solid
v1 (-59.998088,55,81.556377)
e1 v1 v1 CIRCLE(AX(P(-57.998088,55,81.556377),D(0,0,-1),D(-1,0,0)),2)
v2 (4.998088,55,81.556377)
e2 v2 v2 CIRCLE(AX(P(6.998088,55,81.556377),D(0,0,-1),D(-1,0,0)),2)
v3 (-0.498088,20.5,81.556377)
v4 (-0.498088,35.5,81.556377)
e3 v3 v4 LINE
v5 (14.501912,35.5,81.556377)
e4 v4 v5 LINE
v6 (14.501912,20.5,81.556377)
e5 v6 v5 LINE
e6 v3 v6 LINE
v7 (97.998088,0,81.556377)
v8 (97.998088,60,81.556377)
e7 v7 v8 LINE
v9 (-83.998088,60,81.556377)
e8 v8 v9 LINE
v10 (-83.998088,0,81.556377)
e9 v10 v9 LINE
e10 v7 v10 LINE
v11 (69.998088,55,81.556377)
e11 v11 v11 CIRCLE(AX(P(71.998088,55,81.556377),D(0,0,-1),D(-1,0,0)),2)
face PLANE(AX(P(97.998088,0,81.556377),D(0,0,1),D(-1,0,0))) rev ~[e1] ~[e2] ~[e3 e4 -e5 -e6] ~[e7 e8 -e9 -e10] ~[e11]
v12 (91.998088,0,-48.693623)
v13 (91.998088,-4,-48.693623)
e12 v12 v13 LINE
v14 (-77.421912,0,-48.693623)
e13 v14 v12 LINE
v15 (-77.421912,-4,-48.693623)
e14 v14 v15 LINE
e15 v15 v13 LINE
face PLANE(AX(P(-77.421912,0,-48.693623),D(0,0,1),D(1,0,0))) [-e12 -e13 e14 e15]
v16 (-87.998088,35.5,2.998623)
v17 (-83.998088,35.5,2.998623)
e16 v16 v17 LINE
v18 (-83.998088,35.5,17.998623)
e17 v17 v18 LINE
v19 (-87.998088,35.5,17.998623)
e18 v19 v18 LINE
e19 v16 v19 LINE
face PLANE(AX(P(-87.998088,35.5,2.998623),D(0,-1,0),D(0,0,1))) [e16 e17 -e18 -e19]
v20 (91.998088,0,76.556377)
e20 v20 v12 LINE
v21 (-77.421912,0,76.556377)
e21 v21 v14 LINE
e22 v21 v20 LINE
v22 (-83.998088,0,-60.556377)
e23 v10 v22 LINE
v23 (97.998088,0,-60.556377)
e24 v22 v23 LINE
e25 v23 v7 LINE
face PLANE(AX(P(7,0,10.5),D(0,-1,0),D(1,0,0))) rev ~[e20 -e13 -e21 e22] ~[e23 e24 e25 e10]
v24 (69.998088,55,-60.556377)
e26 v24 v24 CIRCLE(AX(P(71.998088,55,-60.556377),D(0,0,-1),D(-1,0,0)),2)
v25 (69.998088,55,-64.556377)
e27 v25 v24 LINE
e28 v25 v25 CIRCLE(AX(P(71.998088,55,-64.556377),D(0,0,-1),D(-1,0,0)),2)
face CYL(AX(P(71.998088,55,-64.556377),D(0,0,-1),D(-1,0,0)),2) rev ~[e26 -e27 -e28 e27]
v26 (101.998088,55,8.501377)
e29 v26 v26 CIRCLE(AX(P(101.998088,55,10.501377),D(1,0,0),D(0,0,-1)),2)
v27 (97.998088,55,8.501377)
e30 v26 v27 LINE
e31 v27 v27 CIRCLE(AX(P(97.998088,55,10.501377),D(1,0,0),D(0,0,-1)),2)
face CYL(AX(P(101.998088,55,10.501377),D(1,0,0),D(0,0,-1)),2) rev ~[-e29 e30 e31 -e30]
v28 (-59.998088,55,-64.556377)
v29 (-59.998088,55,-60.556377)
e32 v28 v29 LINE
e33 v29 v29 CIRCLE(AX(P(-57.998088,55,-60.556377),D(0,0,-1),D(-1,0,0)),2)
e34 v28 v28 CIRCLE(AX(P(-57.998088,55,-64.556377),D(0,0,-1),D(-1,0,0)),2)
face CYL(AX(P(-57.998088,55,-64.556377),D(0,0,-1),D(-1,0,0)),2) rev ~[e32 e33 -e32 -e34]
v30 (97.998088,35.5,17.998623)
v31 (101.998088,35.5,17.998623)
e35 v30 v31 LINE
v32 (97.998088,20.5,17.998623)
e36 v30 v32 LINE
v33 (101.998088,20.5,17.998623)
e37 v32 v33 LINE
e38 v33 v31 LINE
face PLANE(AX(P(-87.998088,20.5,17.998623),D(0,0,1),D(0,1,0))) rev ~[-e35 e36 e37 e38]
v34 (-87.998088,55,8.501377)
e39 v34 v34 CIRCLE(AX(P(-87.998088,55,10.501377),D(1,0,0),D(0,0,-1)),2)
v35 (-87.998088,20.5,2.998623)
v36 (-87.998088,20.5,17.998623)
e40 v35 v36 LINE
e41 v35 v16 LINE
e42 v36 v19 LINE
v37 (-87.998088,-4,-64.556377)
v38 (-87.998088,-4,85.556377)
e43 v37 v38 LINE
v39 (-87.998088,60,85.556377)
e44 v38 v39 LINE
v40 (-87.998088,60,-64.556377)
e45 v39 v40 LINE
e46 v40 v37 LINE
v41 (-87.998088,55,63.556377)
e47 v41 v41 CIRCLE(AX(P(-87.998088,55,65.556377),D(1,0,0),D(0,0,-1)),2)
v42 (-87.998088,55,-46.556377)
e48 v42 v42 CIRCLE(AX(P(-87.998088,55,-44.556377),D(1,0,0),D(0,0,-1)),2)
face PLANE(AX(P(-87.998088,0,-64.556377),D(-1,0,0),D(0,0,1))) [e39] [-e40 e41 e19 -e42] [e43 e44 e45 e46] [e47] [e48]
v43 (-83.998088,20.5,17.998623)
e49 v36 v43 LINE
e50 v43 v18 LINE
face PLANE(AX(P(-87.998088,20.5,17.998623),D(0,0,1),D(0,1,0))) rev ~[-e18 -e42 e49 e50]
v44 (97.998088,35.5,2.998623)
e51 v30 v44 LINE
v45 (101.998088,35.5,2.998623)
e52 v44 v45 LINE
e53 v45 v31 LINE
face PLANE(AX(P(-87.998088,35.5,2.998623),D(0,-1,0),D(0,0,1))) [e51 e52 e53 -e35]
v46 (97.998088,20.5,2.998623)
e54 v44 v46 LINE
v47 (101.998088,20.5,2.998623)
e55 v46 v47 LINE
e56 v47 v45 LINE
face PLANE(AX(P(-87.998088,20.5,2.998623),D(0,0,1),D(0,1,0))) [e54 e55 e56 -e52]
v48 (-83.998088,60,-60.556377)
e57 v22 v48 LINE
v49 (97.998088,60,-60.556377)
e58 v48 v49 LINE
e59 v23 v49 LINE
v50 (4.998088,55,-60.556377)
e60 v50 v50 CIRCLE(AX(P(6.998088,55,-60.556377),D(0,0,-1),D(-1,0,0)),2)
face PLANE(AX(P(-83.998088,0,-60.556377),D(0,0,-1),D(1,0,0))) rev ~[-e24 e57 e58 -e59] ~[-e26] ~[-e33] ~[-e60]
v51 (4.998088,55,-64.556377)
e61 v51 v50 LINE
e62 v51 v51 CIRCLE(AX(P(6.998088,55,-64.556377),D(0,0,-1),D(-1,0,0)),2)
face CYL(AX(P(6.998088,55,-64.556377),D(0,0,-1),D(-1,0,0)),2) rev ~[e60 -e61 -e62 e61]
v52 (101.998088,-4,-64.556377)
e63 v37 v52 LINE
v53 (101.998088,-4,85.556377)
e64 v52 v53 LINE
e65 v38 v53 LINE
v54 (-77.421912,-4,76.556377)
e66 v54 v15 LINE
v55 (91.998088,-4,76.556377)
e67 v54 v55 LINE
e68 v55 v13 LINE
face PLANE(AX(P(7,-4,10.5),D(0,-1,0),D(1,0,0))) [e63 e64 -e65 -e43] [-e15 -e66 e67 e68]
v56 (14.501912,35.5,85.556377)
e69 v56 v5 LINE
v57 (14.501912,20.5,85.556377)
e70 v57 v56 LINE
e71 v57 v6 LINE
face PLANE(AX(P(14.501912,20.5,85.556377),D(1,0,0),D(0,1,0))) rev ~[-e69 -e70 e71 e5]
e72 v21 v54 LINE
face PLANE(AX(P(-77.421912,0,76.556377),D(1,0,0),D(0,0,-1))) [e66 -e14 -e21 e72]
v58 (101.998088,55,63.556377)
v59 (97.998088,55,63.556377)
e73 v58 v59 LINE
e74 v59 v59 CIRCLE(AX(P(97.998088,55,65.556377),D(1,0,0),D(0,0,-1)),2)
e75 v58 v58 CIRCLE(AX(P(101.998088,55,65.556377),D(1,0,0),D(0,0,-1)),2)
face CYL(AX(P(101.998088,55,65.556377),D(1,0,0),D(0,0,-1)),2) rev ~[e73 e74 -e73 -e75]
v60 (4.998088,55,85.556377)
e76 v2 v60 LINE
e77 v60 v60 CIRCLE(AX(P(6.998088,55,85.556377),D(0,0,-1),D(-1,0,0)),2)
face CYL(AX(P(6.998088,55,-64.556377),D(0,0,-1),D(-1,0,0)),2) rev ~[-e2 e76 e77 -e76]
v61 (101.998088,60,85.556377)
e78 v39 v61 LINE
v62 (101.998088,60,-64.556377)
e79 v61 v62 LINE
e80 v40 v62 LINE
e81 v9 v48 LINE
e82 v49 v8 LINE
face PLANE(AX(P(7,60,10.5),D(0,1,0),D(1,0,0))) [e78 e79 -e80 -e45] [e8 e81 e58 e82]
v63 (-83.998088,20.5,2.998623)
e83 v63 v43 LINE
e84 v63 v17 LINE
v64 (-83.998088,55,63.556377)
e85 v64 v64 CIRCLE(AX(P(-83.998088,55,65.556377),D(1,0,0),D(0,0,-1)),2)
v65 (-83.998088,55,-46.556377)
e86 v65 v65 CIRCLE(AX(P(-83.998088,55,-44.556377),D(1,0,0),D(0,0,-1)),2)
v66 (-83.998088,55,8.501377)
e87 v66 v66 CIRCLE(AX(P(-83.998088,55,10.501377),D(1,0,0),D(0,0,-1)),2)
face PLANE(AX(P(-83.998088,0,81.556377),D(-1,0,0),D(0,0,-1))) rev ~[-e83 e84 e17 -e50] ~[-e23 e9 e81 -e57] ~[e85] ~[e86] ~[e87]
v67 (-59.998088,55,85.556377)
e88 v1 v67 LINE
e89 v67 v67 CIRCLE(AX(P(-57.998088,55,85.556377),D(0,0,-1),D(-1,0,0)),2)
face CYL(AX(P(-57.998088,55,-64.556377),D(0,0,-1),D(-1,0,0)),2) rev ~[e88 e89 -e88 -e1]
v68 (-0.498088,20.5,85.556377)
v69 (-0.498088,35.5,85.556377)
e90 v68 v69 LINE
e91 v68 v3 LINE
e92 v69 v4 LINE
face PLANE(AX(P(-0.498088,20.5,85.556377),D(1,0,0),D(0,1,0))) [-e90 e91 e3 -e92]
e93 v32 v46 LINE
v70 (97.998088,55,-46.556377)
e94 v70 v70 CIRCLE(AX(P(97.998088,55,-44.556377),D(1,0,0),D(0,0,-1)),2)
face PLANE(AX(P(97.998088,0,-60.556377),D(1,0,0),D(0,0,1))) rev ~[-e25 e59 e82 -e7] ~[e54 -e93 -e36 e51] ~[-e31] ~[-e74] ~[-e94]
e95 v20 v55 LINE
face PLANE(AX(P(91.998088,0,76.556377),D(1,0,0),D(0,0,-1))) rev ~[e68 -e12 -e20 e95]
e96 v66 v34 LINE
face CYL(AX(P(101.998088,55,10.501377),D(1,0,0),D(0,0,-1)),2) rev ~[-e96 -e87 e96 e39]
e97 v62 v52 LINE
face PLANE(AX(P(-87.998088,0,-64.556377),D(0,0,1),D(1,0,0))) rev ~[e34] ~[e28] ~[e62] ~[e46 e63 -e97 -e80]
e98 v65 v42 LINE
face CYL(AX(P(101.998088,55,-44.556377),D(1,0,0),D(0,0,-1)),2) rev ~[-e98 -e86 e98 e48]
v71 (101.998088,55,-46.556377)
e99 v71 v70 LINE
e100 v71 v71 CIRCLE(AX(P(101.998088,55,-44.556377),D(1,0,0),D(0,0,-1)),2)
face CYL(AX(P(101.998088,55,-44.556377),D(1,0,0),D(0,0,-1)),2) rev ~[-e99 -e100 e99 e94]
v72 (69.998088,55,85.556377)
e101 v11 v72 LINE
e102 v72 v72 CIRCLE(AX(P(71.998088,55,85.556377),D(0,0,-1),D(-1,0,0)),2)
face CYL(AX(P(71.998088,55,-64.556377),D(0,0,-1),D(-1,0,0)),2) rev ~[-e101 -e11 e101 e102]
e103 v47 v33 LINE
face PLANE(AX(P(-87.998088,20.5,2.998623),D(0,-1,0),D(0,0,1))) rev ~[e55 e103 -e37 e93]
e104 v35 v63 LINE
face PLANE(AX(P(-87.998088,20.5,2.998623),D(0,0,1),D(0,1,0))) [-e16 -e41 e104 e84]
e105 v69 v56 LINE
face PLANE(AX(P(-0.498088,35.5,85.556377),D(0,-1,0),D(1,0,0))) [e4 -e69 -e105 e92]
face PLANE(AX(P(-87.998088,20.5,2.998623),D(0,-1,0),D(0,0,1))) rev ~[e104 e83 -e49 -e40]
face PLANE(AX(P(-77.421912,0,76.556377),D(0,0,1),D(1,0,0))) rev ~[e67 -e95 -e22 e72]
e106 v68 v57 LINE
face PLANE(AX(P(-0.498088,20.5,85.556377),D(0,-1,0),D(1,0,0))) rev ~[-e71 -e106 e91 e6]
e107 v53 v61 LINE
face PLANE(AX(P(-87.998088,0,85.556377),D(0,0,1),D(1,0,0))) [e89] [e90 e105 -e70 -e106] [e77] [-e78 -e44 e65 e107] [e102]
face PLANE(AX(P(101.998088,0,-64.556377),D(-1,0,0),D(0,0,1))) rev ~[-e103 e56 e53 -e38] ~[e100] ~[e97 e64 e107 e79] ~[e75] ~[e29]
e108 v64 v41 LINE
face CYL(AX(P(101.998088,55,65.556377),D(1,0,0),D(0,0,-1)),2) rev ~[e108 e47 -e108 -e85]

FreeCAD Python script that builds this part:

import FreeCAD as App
import Part
import Sketcher


def add_polygon(sketch, points):
    """Adds a closed chain of lines whose ends are joined by coincident constraints."""
    first, n = sketch.GeometryCount, len(points)
    for a, b in zip(points, points[1:] + points[:1]):
        sketch.addGeometry(Part.LineSegment(App.Vector(*a, 0), App.Vector(*b, 0)), False)
    for i in range(n):
        sketch.addConstraint(Sketcher.Constraint("Coincident", first + i, 2, first + (i + 1) % n, 1))

doc = App.newDocument("Part")
params = doc.addObject("Spreadsheet::Sheet", "Params")
for row, (alias, value) in enumerate([
    ("pad1_length", "60 mm"),
    ("pad2_length", "4 mm"),
    ("sketch3_width", "169.42 mm"),
    ("sketch3_height", "125.25 mm"),
    ("pocket1_length", "4 mm"),
    ("sketch4_width", "15 mm"),
    ("pocket2_length", "222 mm"),
    ("sketch5_width", "15 mm"),
    ("pocket3_length", "50 mm"),
    ("sketch6_diameter", "4 mm"),
    ("pocket4_length", "220 mm"),
    ("sketch7_diameter", "4 mm"),
    ("pocket5_length", "220 mm"),
], start=1):
    params.set(f"A{row}", alias)
    params.set(f"B{row}", "=" + value)
    params.setAlias(f"B{row}", alias)

body = doc.addObject("PartDesign::Body", "Body")

sketch1 = body.newObject("Sketcher::SketchObject", "Sketch")
sketch1.AttachmentSupport = (doc.getObject("XZ_Plane"), [""])
sketch1.MapMode = "FlatFace"
add_polygon(sketch1, [(-88, -65), (-88, 86), (102, 86), (102, -65)])
add_polygon(sketch1, [(-84, -61), (98, -61), (98, 82), (-84, 82)])
sketch1.addConstraint(Sketcher.Constraint("Vertical", 0))
sketch1.addConstraint(Sketcher.Constraint("Horizontal", 1))
sketch1.addConstraint(Sketcher.Constraint("Vertical", 2))
sketch1.addConstraint(Sketcher.Constraint("Horizontal", 3))
sketch1.addConstraint(Sketcher.Constraint("Horizontal", 4))
sketch1.addConstraint(Sketcher.Constraint("Vertical", 5))
sketch1.addConstraint(Sketcher.Constraint("Horizontal", 6))
sketch1.addConstraint(Sketcher.Constraint("Vertical", 7))
sketch1.addConstraint(Sketcher.Constraint("DistanceX", 4, 2, 2, 2, 4.0))
sketch1.addConstraint(Sketcher.Constraint("DistanceY", 2, 2, 4, 2, 4.0))
sketch1.addConstraint(Sketcher.Constraint("DistanceY", 5, 2, 1, 2, 4.0))
sketch1.addConstraint(Sketcher.Constraint("DistanceX", 0, 2, 6, 2, 4.0))
sketch1.addConstraint(Sketcher.Constraint("DistanceX", 1, 1, 1, 2, 189.996176))
sketch1.addConstraint(Sketcher.Constraint("DistanceY", 0, 1, 0, 2, 150.112755))
sketch1.addConstraint(Sketcher.Constraint("DistanceX", 0, 2, -1, 1, 87.998088))
sketch1.addConstraint(Sketcher.Constraint("DistanceY", -1, 1, 0, 2, 85.556377))
pad1 = body.newObject("PartDesign::Pad", "Pad")
pad1.Profile = sketch1
pad1.setExpression("Length", "Params.pad1_length")
pad1.Reversed = True

sketch2 = body.newObject("Sketcher::SketchObject", "Sketch001")
sketch2.AttachmentSupport = (doc.getObject("XZ_Plane"), [""])
sketch2.MapMode = "FlatFace"
add_polygon(sketch2, [(-88, 86), (-88, -65), (102, -65), (102, 86)])
sketch2.addConstraint(Sketcher.Constraint("Vertical", 0))
sketch2.addConstraint(Sketcher.Constraint("Horizontal", 1))
sketch2.addConstraint(Sketcher.Constraint("Vertical", 2))
sketch2.addConstraint(Sketcher.Constraint("Horizontal", 3))
sketch2.addConstraint(Sketcher.Constraint("DistanceX", 1, 1, 1, 2, 189.996176))
sketch2.addConstraint(Sketcher.Constraint("DistanceY", 0, 2, 0, 1, 150.112755))
sketch2.addConstraint(Sketcher.Constraint("DistanceX", 0, 2, -1, 1, 87.998088))
sketch2.addConstraint(Sketcher.Constraint("DistanceY", 0, 2, -1, 1, 64.556377))
pad2 = body.newObject("PartDesign::Pad", "Pad001")
pad2.Profile = sketch2
pad2.setExpression("Length", "Params.pad2_length")

sketch3 = body.newObject("Sketcher::SketchObject", "Sketch002")
sketch3.AttachmentSupport = (doc.getObject("XZ_Plane"), [""])
sketch3.MapMode = "FlatFace"
add_polygon(sketch3, [(-77, -49), (-77, 77), (92, 77), (92, -49)])
sketch3.addConstraint(Sketcher.Constraint("Vertical", 0))
sketch3.addConstraint(Sketcher.Constraint("Horizontal", 1))
sketch3.addConstraint(Sketcher.Constraint("Vertical", 2))
sketch3.addConstraint(Sketcher.Constraint("Horizontal", 3))
sketch3.addConstraint(Sketcher.Constraint("DistanceX", 1, 1, 1, 2, 169.42))
sketch3.addConstraint(Sketcher.Constraint("DistanceY", 0, 1, 0, 2, 125.25))
sketch3.addConstraint(Sketcher.Constraint("DistanceX", 0, 2, -1, 1, 77.421912))
sketch3.addConstraint(Sketcher.Constraint("DistanceY", -1, 1, 0, 2, 76.556377))
sketch3.setExpression("Constraints[8]", "Params.sketch3_width")
sketch3.setExpression("Constraints[9]", "Params.sketch3_height")
pocket1 = body.newObject("PartDesign::Pocket", "Pocket")
pocket1.Profile = sketch3
pocket1.setExpression("Length", "Params.pocket1_length")
pocket1.Reversed = True

sketch4 = body.newObject("Sketcher::SketchObject", "Sketch003")
sketch4.AttachmentSupport = (doc.getObject("YZ_Plane"), [""])
sketch4.MapMode = "FlatFace"
sketch4.AttachmentOffset = App.Placement(App.Vector(0, 0, -87.998088), App.Rotation())
add_polygon(sketch4, [(36, 3), (20, 3), (20, 18), (36, 18)])
sketch4.addConstraint(Sketcher.Constraint("Horizontal", 0))
sketch4.addConstraint(Sketcher.Constraint("Vertical", 1))
sketch4.addConstraint(Sketcher.Constraint("Horizontal", 2))
sketch4.addConstraint(Sketcher.Constraint("Vertical", 3))
sketch4.addConstraint(Sketcher.Constraint("Equal", 2, 1))
sketch4.addConstraint(Sketcher.Constraint("DistanceX", 0, 2, 0, 1, 15.0))
sketch4.addConstraint(Sketcher.Constraint("DistanceX", -1, 1, 0, 2, 20.5))
sketch4.addConstraint(Sketcher.Constraint("DistanceY", -1, 1, 0, 2, 2.998623))
sketch4.setExpression("Constraints[9]", "Params.sketch4_width")
pocket2 = body.newObject("PartDesign::Pocket", "Pocket001")
pocket2.Profile = sketch4
pocket2.setExpression("Length", "Params.pocket2_length")
pocket2.Reversed = True

sketch5 = body.newObject("Sketcher::SketchObject", "Sketch004")
sketch5.AttachmentSupport = (doc.getObject("XY_Plane"), [""])
sketch5.MapMode = "FlatFace"
sketch5.AttachmentOffset = App.Placement(App.Vector(0, 0, 85.556377), App.Rotation())
add_polygon(sketch5, [(0, 36), (0, 20), (15, 20), (15, 36)])
sketch5.addConstraint(Sketcher.Constraint("Vertical", 0))
sketch5.addConstraint(Sketcher.Constraint("Horizontal", 1))
sketch5.addConstraint(Sketcher.Constraint("Vertical", 2))
sketch5.addConstraint(Sketcher.Constraint("Horizontal", 3))
sketch5.addConstraint(Sketcher.Constraint("Equal", 3, 0))
sketch5.addConstraint(Sketcher.Constraint("DistanceX", 1, 1, 1, 2, 15.0))
sketch5.addConstraint(Sketcher.Constraint("DistanceY", -1, 1, 0, 2, 20.5))
sketch5.addConstraint(Sketcher.Constraint("DistanceX", 0, 2, -1, 1, 0.498088))
sketch5.setExpression("Constraints[9]", "Params.sketch5_width")
pocket3 = body.newObject("PartDesign::Pocket", "Pocket002")
pocket3.Profile = sketch5
pocket3.setExpression("Length", "Params.pocket3_length")

sketch6 = body.newObject("Sketcher::SketchObject", "Sketch005")
sketch6.AttachmentSupport = (doc.getObject("YZ_Plane"), [""])
sketch6.MapMode = "FlatFace"
sketch6.AttachmentOffset = App.Placement(App.Vector(0, 0, 101.998088), App.Rotation())
sketch6.addGeometry(Part.Circle(App.Vector(55, 65.6, 0), App.Vector(0, 0, 1), 2), False)
sketch6.addGeometry(Part.Circle(App.Vector(55, 10.5, 0), App.Vector(0, 0, 1), 2), False)
sketch6.addGeometry(Part.Circle(App.Vector(55, -44.6, 0), App.Vector(0, 0, 1), 2), False)
sketch6.addConstraint(Sketcher.Constraint("Equal", 0, 1))
sketch6.addConstraint(Sketcher.Constraint("Equal", 1, 2))
sketch6.addConstraint(Sketcher.Constraint("Vertical", 0, 3, 1, 3))
sketch6.addConstraint(Sketcher.Constraint("Vertical", 1, 3, 2, 3))
sketch6.addConstraint(Sketcher.Constraint("Diameter", 0, 4.0))
sketch6.addConstraint(Sketcher.Constraint("DistanceX", -1, 1, 0, 3, 55.0))
sketch6.addConstraint(Sketcher.Constraint("DistanceY", 1, 3, 0, 3, 55.055))
sketch6.addConstraint(Sketcher.Constraint("DistanceY", -1, 1, 0, 3, 65.556377))
sketch6.addConstraint(Sketcher.Constraint("DistanceY", 2, 3, -1, 1, 44.556377))
sketch6.setExpression("Constraints[4]", "Params.sketch6_diameter")
pocket4 = body.newObject("PartDesign::Pocket", "Pocket003")
pocket4.Profile = sketch6
pocket4.setExpression("Length", "Params.pocket4_length")

sketch7 = body.newObject("Sketcher::SketchObject", "Sketch006")
sketch7.AttachmentSupport = (doc.getObject("XY_Plane"), [""])
sketch7.MapMode = "FlatFace"
sketch7.AttachmentOffset = App.Placement(App.Vector(0, 0, -64.556377), App.Rotation())
sketch7.addGeometry(Part.Circle(App.Vector(72, 55, 0), App.Vector(0, 0, 1), 2), False)
sketch7.addGeometry(Part.Circle(App.Vector(7, 55, 0), App.Vector(0, 0, 1), 2), False)
sketch7.addGeometry(Part.Circle(App.Vector(-58, 55, 0), App.Vector(0, 0, 1), 2), False)
sketch7.addConstraint(Sketcher.Constraint("Equal", 0, 1))
sketch7.addConstraint(Sketcher.Constraint("Equal", 1, 2))
sketch7.addConstraint(Sketcher.Constraint("Horizontal", 0, 3, 1, 3))
sketch7.addConstraint(Sketcher.Constraint("Horizontal", 1, 3, 2, 3))
sketch7.addConstraint(Sketcher.Constraint("Diameter", 0, 4.0))
sketch7.addConstraint(Sketcher.Constraint("DistanceY", -1, 1, 0, 3, 55.0))
sketch7.addConstraint(Sketcher.Constraint("DistanceX", 1, 3, 0, 3, 65.0))
sketch7.addConstraint(Sketcher.Constraint("DistanceX", -1, 1, 0, 3, 71.998088))
sketch7.addConstraint(Sketcher.Constraint("DistanceX", 2, 3, -1, 1, 57.998088))
sketch7.setExpression("Constraints[4]", "Params.sketch7_diameter")
pocket5 = body.newObject("PartDesign::Pocket", "Pocket004")
pocket5.Profile = sketch7
pocket5.setExpression("Length", "Params.pocket5_length")
pocket5.Reversed = True

doc.recompute()
